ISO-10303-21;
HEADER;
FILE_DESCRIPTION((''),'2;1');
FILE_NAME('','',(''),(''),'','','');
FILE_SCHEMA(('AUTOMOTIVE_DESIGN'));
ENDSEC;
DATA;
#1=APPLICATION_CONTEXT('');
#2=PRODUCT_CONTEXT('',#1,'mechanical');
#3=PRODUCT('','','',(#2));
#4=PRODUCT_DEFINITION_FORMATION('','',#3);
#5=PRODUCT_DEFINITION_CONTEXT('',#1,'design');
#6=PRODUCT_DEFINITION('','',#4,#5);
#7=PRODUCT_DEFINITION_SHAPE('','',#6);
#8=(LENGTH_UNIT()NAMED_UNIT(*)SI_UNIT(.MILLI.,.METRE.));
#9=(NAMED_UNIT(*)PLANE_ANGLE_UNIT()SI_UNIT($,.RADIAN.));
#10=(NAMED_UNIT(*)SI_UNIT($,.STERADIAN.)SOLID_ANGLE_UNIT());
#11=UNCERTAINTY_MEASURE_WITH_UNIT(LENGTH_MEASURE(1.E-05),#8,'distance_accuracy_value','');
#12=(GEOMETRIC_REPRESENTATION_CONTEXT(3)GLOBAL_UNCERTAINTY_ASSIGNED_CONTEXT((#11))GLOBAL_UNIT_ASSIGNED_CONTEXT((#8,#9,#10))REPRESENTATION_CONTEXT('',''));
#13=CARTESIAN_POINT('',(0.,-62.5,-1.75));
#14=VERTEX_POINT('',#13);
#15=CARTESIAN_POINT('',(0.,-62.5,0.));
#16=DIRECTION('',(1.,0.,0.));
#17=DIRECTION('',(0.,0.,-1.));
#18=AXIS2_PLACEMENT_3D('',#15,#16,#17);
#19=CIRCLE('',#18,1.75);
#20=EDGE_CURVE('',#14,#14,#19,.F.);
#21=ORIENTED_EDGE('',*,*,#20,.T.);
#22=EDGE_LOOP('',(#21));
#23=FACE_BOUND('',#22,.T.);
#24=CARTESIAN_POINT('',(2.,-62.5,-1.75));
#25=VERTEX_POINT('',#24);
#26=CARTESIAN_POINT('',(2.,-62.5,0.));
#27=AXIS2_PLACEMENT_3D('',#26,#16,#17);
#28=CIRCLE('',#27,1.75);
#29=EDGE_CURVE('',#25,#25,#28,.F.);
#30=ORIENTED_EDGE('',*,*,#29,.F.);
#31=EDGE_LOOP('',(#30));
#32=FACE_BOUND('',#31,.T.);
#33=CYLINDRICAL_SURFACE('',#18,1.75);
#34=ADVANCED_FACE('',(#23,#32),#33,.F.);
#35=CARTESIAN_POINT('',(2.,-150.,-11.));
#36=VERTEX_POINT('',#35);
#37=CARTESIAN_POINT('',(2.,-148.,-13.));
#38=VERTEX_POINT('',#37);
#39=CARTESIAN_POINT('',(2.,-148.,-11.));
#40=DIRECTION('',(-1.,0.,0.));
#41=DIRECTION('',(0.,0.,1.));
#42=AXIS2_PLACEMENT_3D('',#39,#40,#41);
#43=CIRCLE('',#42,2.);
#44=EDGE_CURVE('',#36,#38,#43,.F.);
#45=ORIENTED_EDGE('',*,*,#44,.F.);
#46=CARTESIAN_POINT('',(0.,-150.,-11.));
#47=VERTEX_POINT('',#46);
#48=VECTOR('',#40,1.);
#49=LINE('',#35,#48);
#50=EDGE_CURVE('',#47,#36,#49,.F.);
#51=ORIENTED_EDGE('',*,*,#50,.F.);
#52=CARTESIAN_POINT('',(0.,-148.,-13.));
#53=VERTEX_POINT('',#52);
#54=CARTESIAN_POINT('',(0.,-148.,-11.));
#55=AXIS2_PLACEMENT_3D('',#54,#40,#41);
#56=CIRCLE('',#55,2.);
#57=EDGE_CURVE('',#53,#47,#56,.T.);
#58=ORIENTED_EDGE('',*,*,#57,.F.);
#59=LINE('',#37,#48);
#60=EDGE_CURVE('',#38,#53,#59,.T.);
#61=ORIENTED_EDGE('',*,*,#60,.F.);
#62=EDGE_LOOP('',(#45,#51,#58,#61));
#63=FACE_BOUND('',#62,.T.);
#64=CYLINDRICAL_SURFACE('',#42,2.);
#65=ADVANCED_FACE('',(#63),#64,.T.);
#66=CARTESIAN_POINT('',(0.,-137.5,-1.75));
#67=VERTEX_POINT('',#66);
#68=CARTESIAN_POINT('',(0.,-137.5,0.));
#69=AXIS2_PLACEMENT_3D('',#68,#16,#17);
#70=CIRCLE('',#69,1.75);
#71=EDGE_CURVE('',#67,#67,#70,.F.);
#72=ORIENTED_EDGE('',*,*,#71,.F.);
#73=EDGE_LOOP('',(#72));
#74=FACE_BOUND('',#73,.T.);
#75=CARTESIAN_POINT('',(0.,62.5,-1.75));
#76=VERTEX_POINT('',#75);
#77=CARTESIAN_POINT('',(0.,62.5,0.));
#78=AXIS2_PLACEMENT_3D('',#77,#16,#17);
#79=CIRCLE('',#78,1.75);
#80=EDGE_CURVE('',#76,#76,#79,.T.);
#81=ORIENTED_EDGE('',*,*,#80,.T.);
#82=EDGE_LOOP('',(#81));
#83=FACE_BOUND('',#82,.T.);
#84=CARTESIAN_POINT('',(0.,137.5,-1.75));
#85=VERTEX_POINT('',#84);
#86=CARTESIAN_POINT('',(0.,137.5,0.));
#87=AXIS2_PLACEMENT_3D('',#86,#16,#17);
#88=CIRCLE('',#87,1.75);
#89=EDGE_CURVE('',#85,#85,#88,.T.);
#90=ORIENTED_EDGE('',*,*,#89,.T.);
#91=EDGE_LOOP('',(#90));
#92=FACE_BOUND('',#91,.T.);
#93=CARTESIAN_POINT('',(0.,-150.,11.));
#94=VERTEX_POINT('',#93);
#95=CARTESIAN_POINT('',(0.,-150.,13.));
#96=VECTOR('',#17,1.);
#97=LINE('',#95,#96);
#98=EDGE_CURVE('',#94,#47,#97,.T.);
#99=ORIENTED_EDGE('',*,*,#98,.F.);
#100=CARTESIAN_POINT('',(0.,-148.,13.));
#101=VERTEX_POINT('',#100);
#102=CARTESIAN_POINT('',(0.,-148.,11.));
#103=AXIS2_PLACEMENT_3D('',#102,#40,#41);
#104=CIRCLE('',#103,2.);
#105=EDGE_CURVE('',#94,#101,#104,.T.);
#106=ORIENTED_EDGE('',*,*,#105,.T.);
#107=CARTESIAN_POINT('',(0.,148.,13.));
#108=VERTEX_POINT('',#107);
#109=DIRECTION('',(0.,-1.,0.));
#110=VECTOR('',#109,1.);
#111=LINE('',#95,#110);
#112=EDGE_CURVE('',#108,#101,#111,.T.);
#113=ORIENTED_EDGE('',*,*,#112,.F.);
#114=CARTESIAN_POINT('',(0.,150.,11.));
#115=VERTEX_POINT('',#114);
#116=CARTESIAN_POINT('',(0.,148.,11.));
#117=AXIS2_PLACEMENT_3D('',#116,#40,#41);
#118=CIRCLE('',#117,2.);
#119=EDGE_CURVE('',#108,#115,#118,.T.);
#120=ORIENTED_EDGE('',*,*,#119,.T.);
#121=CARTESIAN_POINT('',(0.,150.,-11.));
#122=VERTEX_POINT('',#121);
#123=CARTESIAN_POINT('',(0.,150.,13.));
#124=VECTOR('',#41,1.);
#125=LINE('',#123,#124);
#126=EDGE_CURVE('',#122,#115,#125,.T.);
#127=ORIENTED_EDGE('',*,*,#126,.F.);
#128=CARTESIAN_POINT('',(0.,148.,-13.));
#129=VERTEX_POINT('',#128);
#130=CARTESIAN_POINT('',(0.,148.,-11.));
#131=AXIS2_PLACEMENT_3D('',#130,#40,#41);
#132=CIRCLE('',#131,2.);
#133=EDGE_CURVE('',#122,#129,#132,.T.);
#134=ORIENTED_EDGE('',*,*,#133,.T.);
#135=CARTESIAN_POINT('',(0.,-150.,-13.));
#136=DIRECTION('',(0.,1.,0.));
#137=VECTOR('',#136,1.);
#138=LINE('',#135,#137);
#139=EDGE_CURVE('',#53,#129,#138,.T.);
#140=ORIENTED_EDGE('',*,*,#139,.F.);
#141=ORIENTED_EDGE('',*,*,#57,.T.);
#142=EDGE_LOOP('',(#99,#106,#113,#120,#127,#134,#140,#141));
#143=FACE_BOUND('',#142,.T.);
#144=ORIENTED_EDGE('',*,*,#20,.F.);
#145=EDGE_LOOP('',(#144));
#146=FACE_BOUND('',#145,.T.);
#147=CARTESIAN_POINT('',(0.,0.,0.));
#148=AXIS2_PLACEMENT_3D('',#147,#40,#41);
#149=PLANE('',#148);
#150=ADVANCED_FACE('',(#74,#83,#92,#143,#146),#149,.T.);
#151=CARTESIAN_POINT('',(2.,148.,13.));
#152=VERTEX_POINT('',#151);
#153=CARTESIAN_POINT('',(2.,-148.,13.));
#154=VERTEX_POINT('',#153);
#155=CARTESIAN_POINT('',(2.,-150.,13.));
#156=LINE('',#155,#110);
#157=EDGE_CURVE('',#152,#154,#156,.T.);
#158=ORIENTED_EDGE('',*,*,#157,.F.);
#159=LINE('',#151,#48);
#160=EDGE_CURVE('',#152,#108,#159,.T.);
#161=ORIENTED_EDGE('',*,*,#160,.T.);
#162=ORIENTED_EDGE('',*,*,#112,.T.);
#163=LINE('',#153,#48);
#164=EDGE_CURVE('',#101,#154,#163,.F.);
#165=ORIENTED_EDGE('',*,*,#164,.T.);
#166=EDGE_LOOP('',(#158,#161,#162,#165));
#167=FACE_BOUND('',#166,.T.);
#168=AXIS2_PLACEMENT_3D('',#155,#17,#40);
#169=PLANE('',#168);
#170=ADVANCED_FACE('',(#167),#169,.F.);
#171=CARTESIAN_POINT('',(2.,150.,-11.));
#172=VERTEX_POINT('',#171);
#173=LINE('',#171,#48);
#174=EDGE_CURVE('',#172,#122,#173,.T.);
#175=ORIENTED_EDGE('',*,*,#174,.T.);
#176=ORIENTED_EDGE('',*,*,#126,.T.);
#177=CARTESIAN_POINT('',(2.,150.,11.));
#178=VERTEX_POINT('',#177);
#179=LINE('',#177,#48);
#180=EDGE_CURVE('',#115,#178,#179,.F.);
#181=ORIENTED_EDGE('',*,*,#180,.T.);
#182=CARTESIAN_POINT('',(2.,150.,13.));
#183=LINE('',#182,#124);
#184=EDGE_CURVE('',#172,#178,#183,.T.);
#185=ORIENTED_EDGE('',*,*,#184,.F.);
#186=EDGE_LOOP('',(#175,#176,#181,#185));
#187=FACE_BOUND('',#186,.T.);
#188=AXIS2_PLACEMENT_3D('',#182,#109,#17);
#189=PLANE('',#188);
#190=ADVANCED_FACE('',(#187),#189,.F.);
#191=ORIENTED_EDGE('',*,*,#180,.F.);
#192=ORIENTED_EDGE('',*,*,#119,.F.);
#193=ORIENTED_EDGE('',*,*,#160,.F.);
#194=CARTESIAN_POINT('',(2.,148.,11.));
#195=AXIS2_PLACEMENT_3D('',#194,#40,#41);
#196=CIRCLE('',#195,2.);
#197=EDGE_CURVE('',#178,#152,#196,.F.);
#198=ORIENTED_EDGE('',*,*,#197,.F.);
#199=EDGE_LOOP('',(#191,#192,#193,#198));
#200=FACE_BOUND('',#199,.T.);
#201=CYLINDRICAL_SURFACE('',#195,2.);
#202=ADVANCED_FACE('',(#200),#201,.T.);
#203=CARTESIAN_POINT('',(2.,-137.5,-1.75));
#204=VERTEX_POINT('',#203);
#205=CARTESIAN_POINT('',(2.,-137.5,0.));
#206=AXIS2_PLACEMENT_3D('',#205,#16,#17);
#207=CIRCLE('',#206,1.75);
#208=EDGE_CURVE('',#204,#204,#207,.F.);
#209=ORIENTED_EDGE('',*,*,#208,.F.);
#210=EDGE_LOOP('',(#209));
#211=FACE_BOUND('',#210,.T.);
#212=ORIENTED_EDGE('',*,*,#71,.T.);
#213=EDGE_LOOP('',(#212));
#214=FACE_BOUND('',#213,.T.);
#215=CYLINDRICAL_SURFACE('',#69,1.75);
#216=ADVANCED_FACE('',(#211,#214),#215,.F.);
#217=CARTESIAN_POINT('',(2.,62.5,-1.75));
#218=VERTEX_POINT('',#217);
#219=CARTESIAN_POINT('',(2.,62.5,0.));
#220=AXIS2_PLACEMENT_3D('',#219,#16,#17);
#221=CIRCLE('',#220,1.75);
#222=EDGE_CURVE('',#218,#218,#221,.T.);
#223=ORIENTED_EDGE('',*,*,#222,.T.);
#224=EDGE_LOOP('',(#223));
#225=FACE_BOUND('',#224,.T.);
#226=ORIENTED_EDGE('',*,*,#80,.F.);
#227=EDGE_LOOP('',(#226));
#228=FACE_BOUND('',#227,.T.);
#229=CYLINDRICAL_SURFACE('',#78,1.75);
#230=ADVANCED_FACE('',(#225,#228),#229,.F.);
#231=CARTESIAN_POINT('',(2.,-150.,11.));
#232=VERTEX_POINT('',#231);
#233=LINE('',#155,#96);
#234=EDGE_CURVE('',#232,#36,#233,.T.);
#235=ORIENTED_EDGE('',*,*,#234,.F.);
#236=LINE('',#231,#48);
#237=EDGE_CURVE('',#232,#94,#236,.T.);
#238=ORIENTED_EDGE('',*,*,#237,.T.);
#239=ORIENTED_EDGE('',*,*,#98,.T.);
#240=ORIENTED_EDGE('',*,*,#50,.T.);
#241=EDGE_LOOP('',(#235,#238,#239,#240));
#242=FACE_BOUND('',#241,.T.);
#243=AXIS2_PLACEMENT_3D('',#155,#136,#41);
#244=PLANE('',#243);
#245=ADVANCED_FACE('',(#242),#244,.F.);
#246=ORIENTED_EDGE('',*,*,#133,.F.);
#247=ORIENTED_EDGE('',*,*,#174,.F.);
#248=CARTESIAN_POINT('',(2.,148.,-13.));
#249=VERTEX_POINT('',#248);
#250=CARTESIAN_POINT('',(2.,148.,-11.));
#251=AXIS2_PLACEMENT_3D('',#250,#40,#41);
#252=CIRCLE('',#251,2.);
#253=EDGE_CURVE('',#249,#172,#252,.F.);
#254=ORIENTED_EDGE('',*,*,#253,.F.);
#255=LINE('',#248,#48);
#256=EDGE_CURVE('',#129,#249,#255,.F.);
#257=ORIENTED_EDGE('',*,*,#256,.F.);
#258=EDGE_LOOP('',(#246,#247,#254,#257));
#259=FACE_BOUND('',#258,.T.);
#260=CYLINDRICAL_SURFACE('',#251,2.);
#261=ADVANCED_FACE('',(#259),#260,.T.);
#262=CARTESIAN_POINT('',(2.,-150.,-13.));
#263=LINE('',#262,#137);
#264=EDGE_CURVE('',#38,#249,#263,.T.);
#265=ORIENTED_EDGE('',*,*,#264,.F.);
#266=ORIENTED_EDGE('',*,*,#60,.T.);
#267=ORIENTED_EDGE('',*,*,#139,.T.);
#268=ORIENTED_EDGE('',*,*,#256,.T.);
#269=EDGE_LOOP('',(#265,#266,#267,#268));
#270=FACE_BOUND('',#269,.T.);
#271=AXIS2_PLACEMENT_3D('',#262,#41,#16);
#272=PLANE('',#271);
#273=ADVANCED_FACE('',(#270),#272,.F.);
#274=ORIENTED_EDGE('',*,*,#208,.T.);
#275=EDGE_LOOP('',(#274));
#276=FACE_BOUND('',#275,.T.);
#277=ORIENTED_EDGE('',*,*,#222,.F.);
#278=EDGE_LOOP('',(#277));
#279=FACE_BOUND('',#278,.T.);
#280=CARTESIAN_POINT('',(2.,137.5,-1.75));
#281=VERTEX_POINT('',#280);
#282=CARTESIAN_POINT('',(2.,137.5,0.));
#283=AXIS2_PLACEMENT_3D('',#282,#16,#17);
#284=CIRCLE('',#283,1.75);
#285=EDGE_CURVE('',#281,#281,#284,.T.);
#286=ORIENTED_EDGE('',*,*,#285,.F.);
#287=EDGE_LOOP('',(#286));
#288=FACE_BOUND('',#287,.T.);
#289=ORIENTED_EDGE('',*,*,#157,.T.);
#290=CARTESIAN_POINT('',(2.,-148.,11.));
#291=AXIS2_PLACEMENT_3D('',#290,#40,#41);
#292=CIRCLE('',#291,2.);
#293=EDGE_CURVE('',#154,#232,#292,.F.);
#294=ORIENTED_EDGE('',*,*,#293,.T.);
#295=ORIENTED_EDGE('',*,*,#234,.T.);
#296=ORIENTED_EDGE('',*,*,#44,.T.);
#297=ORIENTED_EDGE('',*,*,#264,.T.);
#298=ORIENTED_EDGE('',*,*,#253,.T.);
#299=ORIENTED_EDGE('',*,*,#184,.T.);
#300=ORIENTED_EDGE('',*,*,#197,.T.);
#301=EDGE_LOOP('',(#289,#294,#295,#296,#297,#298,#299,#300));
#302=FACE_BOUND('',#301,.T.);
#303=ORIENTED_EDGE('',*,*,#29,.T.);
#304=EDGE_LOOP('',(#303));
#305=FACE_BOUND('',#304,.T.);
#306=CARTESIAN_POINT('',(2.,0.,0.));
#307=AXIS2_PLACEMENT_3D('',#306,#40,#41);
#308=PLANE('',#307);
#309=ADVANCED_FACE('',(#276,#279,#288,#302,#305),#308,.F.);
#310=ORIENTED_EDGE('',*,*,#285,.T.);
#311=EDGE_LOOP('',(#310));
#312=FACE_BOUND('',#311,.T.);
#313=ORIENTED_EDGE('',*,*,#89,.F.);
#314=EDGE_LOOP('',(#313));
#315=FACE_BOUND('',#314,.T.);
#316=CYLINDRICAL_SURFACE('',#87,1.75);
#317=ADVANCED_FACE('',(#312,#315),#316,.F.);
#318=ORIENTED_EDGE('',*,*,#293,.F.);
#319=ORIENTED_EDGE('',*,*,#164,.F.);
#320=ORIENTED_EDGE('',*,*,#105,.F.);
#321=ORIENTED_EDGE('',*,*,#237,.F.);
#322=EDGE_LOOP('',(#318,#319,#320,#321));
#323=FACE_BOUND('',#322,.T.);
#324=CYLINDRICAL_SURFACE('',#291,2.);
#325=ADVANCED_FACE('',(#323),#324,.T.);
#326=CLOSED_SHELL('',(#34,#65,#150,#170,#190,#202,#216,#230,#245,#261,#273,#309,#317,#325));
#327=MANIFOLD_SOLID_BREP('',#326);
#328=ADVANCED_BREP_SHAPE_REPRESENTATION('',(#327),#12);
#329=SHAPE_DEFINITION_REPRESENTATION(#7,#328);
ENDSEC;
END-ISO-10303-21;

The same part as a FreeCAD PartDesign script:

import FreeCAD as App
import Part
import Sketcher

V = App.Vector
Q = App.Units.Quantity


def edges_at(feature, points):
    """Names of the edges that pass closest to the given points."""
    edges = feature.Shape.Edges
    near = lambda p: min(range(len(edges)), key=lambda i: edges[i].distToShape(Part.Vertex(*p))[0])
    return sorted({f"Edge{near(p) + 1}" for p in points})

doc = App.newDocument("Part")
body = doc.addObject("PartDesign::Body", "Body")

# Sketch on YZ plane
sketch1 = body.newObject("Sketcher::SketchObject", "Sketch")
sketch1.AttachmentSupport = (doc.getObject("YZ_Plane"), [""])
sketch1.MapMode = "FlatFace"
sketch1.addGeometry(Part.LineSegment(V(150, 13, 0), V(-150, 13, 0)), False)
sketch1.addGeometry(Part.LineSegment(V(-150, 13, 0), V(-150, -13, 0)), False)
sketch1.addGeometry(Part.LineSegment(V(-150, -13, 0), V(150, -13, 0)), False)
sketch1.addGeometry(Part.LineSegment(V(150, -13, 0), V(150, 13, 0)), False)
sketch1.addConstraint(Sketcher.Constraint("Coincident", 0, 2, 1, 1))
sketch1.addConstraint(Sketcher.Constraint("Coincident", 1, 2, 2, 1))
sketch1.addConstraint(Sketcher.Constraint("Coincident", 2, 2, 3, 1))
sketch1.addConstraint(Sketcher.Constraint("Coincident", 3, 2, 0, 1))
sketch1.addConstraint(Sketcher.Constraint("Horizontal", 0))
sketch1.addConstraint(Sketcher.Constraint("Vertical", 1))
sketch1.addConstraint(Sketcher.Constraint("Horizontal", 2))
sketch1.addConstraint(Sketcher.Constraint("Vertical", 3))
sketch1.addConstraint(Sketcher.Constraint("Symmetric", 0, 2, 2, 2, -1, 1))
sketch1.addConstraint(Sketcher.Constraint("DistanceX", 0, 2, 0, 1, Q("300 mm")))
sketch1.addConstraint(Sketcher.Constraint("DistanceY", 1, 2, 1, 1, Q("26 mm")))
pad1 = body.newObject("PartDesign::Pad", "Pad")
pad1.Profile = sketch1
pad1.Length = 2
doc.recompute()

fillet = body.newObject("PartDesign::Fillet", "Fillet")
fillet.Base = (pad1, edges_at(pad1, [
    (1, -150, -13),
    (1, -150, 13),
    (1, 150, 13),
    (1, 150, -13),
]))
fillet.Radius = 2

# Sketch on YZ plane
sketch2 = body.newObject("Sketcher::SketchObject", "Sketch001")
sketch2.AttachmentSupport = (doc.getObject("YZ_Plane"), [""])
sketch2.MapMode = "FlatFace"
sketch2.AttachmentOffset = App.Placement(V(0, 0, 2), App.Rotation())
sketch2.addGeometry(Part.Circle(V(-137.5, 0, 0), V(0, 0, 1), 1.8), False)
sketch2.addGeometry(Part.Circle(V(-62.5, 0, 0), V(0, 0, 1), 1.8), False)
sketch2.addGeometry(Part.Circle(V(62.5, 0, 0), V(0, 0, 1), 1.8), False)
sketch2.addGeometry(Part.Circle(V(137.5, 0, 0), V(0, 0, 1), 1.8), False)
sketch2.addConstraint(Sketcher.Constraint("Equal", 0, 1))
sketch2.addConstraint(Sketcher.Constraint("Equal", 1, 2))
sketch2.addConstraint(Sketcher.Constraint("Equal", 2, 3))
sketch2.addConstraint(Sketcher.Constraint("Symmetric", 1, 3, 2, 3, -1, 1))
sketch2.addConstraint(Sketcher.Constraint("Symmetric", 0, 3, 3, 3, -1, 1))
sketch2.addConstraint(Sketcher.Constraint("PointOnObject", 0, 3, -1))
sketch2.addConstraint(Sketcher.Constraint("PointOnObject", 1, 3, -1))
sketch2.addConstraint(Sketcher.Constraint("Diameter", 0, Q("3.5 mm")))
sketch2.addConstraint(Sketcher.Constraint("DistanceX", 0, 3, 1, 3, Q("75 mm")))
sketch2.addConstraint(Sketcher.Constraint("DistanceX", 1, 3, 2, 3, Q("125 mm")))
pocket1 = body.newObject("PartDesign::Pocket", "Pocket")
pocket1.Profile = sketch2
pocket1.Type = "ThroughAll"

doc.recompute()
